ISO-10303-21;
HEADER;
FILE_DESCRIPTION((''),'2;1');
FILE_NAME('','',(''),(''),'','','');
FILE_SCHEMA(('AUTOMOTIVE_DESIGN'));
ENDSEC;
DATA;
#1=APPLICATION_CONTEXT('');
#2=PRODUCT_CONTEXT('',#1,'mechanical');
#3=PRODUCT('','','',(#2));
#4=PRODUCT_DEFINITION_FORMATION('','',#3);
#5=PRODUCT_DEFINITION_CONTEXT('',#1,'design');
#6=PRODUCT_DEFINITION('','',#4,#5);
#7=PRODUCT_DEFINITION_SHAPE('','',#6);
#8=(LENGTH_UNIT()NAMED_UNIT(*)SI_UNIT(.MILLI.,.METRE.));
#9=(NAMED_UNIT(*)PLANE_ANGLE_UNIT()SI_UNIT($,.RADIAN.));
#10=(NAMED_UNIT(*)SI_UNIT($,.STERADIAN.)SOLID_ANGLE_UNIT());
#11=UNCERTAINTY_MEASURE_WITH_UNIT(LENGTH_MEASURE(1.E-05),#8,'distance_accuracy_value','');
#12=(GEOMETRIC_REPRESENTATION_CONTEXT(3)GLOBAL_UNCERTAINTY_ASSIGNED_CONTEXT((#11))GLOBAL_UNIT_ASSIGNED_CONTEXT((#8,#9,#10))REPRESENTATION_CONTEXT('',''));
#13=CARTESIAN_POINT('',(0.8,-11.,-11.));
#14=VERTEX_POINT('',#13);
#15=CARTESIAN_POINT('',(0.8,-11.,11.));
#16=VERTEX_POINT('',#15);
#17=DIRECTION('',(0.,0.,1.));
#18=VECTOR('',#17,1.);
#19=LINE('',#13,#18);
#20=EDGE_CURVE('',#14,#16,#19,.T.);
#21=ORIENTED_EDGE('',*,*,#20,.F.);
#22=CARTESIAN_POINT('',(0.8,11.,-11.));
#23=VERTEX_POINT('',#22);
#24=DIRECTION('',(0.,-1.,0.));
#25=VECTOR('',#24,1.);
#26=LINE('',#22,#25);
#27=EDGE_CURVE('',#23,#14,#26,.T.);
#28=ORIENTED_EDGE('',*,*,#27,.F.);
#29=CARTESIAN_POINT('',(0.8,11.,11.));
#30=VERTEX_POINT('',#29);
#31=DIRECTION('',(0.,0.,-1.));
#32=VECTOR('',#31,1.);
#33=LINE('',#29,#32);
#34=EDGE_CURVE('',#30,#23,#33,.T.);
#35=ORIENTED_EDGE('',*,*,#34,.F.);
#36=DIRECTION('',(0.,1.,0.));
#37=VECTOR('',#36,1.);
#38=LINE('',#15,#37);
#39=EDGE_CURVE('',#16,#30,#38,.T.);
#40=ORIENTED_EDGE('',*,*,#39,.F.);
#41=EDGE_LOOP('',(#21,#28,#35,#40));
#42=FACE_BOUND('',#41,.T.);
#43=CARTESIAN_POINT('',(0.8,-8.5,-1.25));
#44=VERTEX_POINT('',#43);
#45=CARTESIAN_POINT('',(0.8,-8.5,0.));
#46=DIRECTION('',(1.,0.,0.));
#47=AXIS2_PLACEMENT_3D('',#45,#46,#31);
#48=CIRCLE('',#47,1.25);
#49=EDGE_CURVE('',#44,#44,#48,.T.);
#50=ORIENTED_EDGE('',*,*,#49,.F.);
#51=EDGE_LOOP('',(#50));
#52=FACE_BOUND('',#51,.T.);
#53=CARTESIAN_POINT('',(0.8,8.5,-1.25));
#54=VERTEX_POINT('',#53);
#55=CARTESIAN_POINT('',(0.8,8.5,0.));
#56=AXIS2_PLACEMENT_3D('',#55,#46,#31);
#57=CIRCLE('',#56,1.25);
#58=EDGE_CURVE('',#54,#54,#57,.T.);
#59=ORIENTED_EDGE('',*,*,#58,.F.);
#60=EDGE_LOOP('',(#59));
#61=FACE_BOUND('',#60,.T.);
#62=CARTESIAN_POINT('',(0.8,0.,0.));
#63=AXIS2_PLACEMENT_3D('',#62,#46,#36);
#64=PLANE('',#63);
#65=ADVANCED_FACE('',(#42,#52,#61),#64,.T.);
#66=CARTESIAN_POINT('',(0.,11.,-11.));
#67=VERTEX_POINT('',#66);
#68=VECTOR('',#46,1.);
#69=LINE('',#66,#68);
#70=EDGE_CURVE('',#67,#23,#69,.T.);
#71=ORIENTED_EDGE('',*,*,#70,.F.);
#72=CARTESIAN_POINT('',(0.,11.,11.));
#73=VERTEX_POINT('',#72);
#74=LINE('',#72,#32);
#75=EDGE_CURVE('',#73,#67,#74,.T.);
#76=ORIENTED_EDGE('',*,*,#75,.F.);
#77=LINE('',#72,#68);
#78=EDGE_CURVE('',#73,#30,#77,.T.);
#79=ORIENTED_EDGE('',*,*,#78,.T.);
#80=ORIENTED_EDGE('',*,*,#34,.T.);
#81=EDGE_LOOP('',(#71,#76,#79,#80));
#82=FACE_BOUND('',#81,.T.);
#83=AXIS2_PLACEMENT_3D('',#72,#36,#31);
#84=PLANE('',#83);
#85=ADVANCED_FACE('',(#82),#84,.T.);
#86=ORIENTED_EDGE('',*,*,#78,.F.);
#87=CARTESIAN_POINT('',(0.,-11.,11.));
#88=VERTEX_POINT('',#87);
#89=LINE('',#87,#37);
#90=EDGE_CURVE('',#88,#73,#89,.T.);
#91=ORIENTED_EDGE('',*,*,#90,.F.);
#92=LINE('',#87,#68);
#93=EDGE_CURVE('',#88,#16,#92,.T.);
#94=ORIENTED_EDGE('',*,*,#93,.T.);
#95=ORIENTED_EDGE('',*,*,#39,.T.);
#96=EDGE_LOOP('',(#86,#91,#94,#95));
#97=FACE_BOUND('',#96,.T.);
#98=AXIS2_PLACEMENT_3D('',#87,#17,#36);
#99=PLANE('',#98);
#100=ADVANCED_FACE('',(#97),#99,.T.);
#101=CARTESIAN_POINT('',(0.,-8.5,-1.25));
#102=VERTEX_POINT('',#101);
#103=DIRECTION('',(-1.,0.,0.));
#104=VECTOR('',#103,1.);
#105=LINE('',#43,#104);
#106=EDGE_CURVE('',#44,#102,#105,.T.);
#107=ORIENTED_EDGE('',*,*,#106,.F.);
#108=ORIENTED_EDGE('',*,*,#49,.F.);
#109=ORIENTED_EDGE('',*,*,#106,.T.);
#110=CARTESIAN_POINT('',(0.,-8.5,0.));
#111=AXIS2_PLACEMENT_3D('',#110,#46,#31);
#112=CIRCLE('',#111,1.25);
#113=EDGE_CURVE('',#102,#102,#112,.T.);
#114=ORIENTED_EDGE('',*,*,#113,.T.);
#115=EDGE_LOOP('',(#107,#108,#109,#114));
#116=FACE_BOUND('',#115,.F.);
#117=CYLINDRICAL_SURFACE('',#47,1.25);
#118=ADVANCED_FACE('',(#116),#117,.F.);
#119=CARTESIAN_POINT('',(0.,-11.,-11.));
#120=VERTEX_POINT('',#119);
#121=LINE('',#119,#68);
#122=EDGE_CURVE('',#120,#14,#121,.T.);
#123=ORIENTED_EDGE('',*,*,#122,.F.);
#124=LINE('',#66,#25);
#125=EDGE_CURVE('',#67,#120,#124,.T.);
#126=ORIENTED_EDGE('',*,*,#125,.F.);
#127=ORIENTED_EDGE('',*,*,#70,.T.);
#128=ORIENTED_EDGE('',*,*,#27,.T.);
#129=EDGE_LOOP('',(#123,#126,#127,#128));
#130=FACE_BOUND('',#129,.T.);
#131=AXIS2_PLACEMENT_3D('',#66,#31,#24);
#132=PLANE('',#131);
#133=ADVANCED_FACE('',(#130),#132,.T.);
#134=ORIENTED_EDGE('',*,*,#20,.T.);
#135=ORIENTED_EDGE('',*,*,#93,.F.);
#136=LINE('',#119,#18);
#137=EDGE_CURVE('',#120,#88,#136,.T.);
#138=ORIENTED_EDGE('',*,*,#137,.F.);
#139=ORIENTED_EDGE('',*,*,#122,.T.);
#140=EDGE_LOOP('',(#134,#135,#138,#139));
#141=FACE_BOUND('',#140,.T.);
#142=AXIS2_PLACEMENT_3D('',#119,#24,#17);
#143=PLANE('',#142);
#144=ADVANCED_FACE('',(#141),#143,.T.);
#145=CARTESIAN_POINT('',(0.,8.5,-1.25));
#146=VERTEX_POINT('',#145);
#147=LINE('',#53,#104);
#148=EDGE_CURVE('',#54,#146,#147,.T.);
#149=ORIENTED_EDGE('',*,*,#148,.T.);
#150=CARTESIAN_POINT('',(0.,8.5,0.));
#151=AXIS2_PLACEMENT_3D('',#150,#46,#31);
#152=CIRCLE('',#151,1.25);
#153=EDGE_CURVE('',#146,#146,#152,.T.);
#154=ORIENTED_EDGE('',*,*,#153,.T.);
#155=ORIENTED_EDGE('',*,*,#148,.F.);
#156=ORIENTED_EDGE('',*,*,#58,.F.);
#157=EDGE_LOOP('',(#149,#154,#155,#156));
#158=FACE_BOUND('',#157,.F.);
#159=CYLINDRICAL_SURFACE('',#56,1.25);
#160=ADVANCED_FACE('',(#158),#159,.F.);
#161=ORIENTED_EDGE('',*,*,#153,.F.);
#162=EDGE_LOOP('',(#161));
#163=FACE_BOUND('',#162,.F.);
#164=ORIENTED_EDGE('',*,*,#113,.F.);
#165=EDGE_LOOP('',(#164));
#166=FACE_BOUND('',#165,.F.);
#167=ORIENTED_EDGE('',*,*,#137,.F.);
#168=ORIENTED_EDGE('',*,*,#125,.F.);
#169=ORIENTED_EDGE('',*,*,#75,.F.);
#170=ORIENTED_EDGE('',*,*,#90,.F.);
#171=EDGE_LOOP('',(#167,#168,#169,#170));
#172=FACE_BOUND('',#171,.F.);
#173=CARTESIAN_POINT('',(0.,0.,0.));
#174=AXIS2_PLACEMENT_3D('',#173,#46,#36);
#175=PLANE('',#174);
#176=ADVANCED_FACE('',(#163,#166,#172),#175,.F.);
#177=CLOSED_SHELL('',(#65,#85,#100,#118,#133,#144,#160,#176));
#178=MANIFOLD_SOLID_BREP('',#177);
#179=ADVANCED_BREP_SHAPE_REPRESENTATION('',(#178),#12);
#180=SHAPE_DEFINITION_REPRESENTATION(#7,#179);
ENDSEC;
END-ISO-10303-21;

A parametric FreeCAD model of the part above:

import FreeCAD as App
import Part
import Sketcher

V = App.Vector

doc = App.newDocument("Part")
body = doc.addObject("PartDesign::Body", "Body")

# Sketch on YZ plane
sketch1 = body.newObject("Sketcher::SketchObject", "Sketch")
sketch1.AttachmentSupport = (doc.getObject("YZ_Plane"), [""])
sketch1.MapMode = "FlatFace"
sketch1.addGeometry(Part.LineSegment(V(11, 11, 0), V(-11, 11, 0)), False)
sketch1.addGeometry(Part.LineSegment(V(-11, 11, 0), V(-11, -11, 0)), False)
sketch1.addGeometry(Part.LineSegment(V(-11, -11, 0), V(11, -11, 0)), False)
sketch1.addGeometry(Part.LineSegment(V(11, -11, 0), V(11, 11, 0)), False)
sketch1.addConstraint(Sketcher.Constraint("Coincident", 0, 2, 1, 1))
sketch1.addConstraint(Sketcher.Constraint("Coincident", 1, 2, 2, 1))
sketch1.addConstraint(Sketcher.Constraint("Coincident", 2, 2, 3, 1))
sketch1.addConstraint(Sketcher.Constraint("Coincident", 3, 2, 0, 1))
sketch1.addConstraint(Sketcher.Constraint("Horizontal", 0))
sketch1.addConstraint(Sketcher.Constraint("Vertical", 1))
sketch1.addConstraint(Sketcher.Constraint("Horizontal", 2))
sketch1.addConstraint(Sketcher.Constraint("Vertical", 3))
sketch1.addConstraint(Sketcher.Constraint("Symmetric", 0, 2, 2, 2, -1, 1))
sketch1.addConstraint(Sketcher.Constraint("Equal", 2, 1))
sketch1.addConstraint(Sketcher.Constraint("DistanceX", 0, 2, 0, 1, 22.0))
pad1 = body.newObject("PartDesign::Pad", "Pad")
pad1.Profile = sketch1
pad1.Length = 0.8

# Sketch on YZ plane
sketch2 = body.newObject("Sketcher::SketchObject", "Sketch001")
sketch2.AttachmentSupport = (doc.getObject("YZ_Plane"), [""])
sketch2.MapMode = "FlatFace"
sketch2.AttachmentOffset = App.Placement(V(0, 0, 0.8), App.Rotation())
sketch2.addGeometry(Part.Circle(V(-8.5, 0, 0), V(0, 0, 1), 1.2), False)
sketch2.addGeometry(Part.Circle(V(8.5, 0, 0), V(0, 0, 1), 1.2), False)
sketch2.addConstraint(Sketcher.Constraint("Equal", 0, 1))
sketch2.addConstraint(Sketcher.Constraint("Symmetric", 0, 3, 1, 3, -1, 1))
sketch2.addConstraint(Sketcher.Constraint("PointOnObject", 0, 3, -1))
sketch2.addConstraint(Sketcher.Constraint("Diameter", 0, 2.5))
sketch2.addConstraint(Sketcher.Constraint("DistanceX", 0, 3, -1, 1, 8.5))
pocket1 = body.newObject("PartDesign::Pocket", "Pocket")
pocket1.Profile = sketch2
pocket1.Length = 10

doc.recompute()
